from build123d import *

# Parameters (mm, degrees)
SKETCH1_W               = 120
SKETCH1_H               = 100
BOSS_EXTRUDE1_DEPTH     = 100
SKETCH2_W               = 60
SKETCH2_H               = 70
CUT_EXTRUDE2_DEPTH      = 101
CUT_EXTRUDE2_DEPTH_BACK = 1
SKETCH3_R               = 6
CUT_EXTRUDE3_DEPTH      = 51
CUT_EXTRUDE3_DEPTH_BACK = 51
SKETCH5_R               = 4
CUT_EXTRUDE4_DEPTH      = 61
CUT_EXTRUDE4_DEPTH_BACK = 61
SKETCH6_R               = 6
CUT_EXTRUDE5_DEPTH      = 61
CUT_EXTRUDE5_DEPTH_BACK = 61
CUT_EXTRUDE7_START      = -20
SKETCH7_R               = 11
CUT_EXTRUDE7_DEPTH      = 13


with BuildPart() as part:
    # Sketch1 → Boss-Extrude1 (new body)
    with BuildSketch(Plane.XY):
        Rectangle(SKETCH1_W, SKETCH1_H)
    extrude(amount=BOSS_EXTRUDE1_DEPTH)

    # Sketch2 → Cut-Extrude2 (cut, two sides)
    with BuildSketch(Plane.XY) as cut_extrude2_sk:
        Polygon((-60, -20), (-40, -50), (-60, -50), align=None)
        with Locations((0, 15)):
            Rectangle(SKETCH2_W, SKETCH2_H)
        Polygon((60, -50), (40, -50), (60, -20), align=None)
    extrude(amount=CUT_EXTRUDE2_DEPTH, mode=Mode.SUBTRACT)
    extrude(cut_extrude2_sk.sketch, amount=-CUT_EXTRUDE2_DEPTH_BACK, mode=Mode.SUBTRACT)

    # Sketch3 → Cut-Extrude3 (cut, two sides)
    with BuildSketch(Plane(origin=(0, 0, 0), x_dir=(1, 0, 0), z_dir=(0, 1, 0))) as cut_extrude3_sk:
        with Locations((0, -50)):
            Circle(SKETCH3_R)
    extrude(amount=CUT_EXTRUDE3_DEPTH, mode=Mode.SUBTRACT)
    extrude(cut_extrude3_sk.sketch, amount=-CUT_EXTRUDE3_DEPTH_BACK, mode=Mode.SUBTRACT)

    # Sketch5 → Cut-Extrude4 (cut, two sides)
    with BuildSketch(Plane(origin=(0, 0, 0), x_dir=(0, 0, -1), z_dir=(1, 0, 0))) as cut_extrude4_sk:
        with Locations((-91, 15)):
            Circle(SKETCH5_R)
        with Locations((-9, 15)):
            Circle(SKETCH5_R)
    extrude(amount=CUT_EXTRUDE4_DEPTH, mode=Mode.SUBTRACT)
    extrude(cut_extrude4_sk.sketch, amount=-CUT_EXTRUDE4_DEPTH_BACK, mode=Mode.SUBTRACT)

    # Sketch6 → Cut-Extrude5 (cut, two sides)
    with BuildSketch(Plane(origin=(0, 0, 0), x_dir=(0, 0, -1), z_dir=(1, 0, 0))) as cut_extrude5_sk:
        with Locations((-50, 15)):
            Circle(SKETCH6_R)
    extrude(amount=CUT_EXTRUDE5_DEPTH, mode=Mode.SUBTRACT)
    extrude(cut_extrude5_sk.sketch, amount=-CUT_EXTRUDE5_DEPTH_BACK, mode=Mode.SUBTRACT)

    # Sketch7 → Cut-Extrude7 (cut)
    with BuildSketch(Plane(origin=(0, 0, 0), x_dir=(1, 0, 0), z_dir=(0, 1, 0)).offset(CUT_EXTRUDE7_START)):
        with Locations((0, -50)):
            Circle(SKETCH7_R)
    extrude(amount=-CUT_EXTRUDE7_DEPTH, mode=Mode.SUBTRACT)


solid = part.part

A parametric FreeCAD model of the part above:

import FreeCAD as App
import Part
import Sketcher
from FreeCAD import Vector
Q = App.Units.Quantity

doc = App.newDocument("Part")
params = doc.addObject("Spreadsheet::Sheet", "Params")
for row, (alias, value) in enumerate([
    ("sketch1_width", "120 mm"),
    ("sketch1_height", "100 mm"),
    ("pad1_length", "100 mm"),
    ("sketch2_width", "20 mm"),
    ("sketch2_width2", "60 mm"),
    ("sketch2_height", "30 mm"),
    ("sketch2_height2", "70 mm"),
    ("sketch3_diameter", "12 mm"),
    ("sketch4_diameter", "8 mm"),
    ("sketch5_diameter", "12 mm"),
    ("sketch6_diameter", "22 mm"),
    ("pocket5_length", "13 mm"),
], start=1):
    params.set(f"A{row}", alias)
    params.set(f"B{row}", "=" + value)
    params.setAlias(f"B{row}", alias)

body = doc.addObject("PartDesign::Body", "Body")

sketch1 = doc.addObject("Sketcher::SketchObject", "Sketch")
body.addObject(sketch1)
sketch1.AttachmentSupport = (doc.XY_Plane, [""])
sketch1.MapMode = "FlatFace"
sketch1.addGeometry([
    Part.LineSegment(Vector(-60, 50, 0), Vector(-60, -50, 0)),
    Part.LineSegment(Vector(-60, -50, 0), Vector(60, -50, 0)),
    Part.LineSegment(Vector(60, -50, 0), Vector(60, 50, 0)),
    Part.LineSegment(Vector(60, 50, 0), Vector(-60, 50, 0)),
], False)
sketch1.addConstraint([
    Sketcher.Constraint("Coincident", 0, 2, 1, 1),
    Sketcher.Constraint("Coincident", 1, 2, 2, 1),
    Sketcher.Constraint("Coincident", 2, 2, 3, 1),
    Sketcher.Constraint("Coincident", 3, 2, 0, 1),
    Sketcher.Constraint("Vertical", 0),
    Sketcher.Constraint("Horizontal", 1),
    Sketcher.Constraint("Vertical", 2),
    Sketcher.Constraint("Horizontal", 3),
    Sketcher.Constraint("Symmetric", 0, 2, 2, 2, -1, 1),
    Sketcher.Constraint("DistanceX", 1, 1, 1, 2, Q("120 mm")),
    Sketcher.Constraint("DistanceY", 0, 2, 0, 1, Q("100 mm")),
])
sketch1.setExpression("Constraints[9]", "Params.sketch1_width")
sketch1.setExpression("Constraints[10]", "Params.sketch1_height")
pad1 = doc.addObject("PartDesign::Pad", "Pad")
body.addObject(pad1)
pad1.Profile = sketch1
pad1.setExpression("Length", "Params.pad1_length")

sketch2 = doc.addObject("Sketcher::SketchObject", "Sketch001")
body.addObject(sketch2)
sketch2.AttachmentSupport = (doc.XY_Plane, [""])
sketch2.MapMode = "FlatFace"
sketch2.addGeometry([
    Part.LineSegment(Vector(-40, -50, 0), Vector(-60, -20, 0)),
    Part.LineSegment(Vector(-60, -20, 0), Vector(-60, -50, 0)),
    Part.LineSegment(Vector(-60, -50, 0), Vector(-40, -50, 0)),
    Part.LineSegment(Vector(-30, 50, 0), Vector(-30, -20, 0)),
    Part.LineSegment(Vector(-30, -20, 0), Vector(30, -20, 0)),
    Part.LineSegment(Vector(30, -20, 0), Vector(30, 50, 0)),
    Part.LineSegment(Vector(30, 50, 0), Vector(-30, 50, 0)),
    Part.LineSegment(Vector(40, -50, 0), Vector(60, -50, 0)),
    Part.LineSegment(Vector(60, -50, 0), Vector(60, -20, 0)),
    Part.LineSegment(Vector(60, -20, 0), Vector(40, -50, 0)),
], False)
sketch2.addConstraint([
    Sketcher.Constraint("Coincident", 0, 2, 1, 1),
    Sketcher.Constraint("Coincident", 1, 2, 2, 1),
    Sketcher.Constraint("Coincident", 2, 2, 0, 1),
    Sketcher.Constraint("Coincident", 3, 2, 4, 1),
    Sketcher.Constraint("Coincident", 4, 2, 5, 1),
    Sketcher.Constraint("Coincident", 5, 2, 6, 1),
    Sketcher.Constraint("Coincident", 6, 2, 3, 1),
    Sketcher.Constraint("Coincident", 7, 2, 8, 1),
    Sketcher.Constraint("Coincident", 8, 2, 9, 1),
    Sketcher.Constraint("Coincident", 9, 2, 7, 1),
    Sketcher.Constraint("Vertical", 1),
    Sketcher.Constraint("Horizontal", 2),
    Sketcher.Constraint("Vertical", 3),
    Sketcher.Constraint("Horizontal", 4),
    Sketcher.Constraint("Vertical", 5),
    Sketcher.Constraint("Horizontal", 6),
    Sketcher.Constraint("Horizontal", 7),
    Sketcher.Constraint("Vertical", 8),
    Sketcher.Constraint("Symmetric", 1, 2, 7, 2, -2),
    Sketcher.Constraint("Horizontal", 0, 2, 3, 2),
    Sketcher.Constraint("Horizontal", 4, 2, 8, 2),
    Sketcher.Constraint("Equal", 2, 7),
    Sketcher.Constraint("DistanceX", 2, 1, 2, 2, Q("20 mm")),
    Sketcher.Constraint("DistanceX", 4, 1, 4, 2, Q("60 mm")),
    Sketcher.Constraint("DistanceY", 1, 2, 1, 1, Q("30 mm")),
    Sketcher.Constraint("DistanceY", 3, 2, 3, 1, Q("70 mm")),
    Sketcher.Constraint("DistanceX", 0, 2, -1, 1, Q("60 mm")),
    Sketcher.Constraint("DistanceY", 0, 2, -1, 1, Q("20 mm")),
    Sketcher.Constraint("DistanceX", 3, 2, -1, 1, Q("30 mm")),
])
sketch2.setExpression("Constraints[22]", "Params.sketch2_width")
sketch2.setExpression("Constraints[23]", "Params.sketch2_width2")
sketch2.setExpression("Constraints[24]", "Params.sketch2_height")
sketch2.setExpression("Constraints[25]", "Params.sketch2_height2")
pocket1 = doc.addObject("PartDesign::Pocket", "Pocket")
body.addObject(pocket1)
pocket1.Profile = sketch2
pocket1.Type = "ThroughAll"
pocket1.Midplane = True

sketch3 = doc.addObject("Sketcher::SketchObject", "Sketch002")
body.addObject(sketch3)
sketch3.AttachmentSupport = (doc.XZ_Plane, [""])
sketch3.MapMode = "FlatFace"
sketch3.addGeometry(Part.Circle(Vector(0, 50, 0), Vector(0, 0, 1), 6), False)
sketch3.addConstraint([
    Sketcher.Constraint("PointOnObject", 0, 3, -2),
    Sketcher.Constraint("Diameter", 0, Q("12 mm")),
    Sketcher.Constraint("DistanceY", -1, 1, 0, 3, Q("50 mm")),
])
sketch3.setExpression("Constraints[1]", "Params.sketch3_diameter")
pocket2 = doc.addObject("PartDesign::Pocket", "Pocket001")
body.addObject(pocket2)
pocket2.Profile = sketch3
pocket2.Type = "ThroughAll"
pocket2.Midplane = True

sketch4 = doc.addObject("Sketcher::SketchObject", "Sketch003")
body.addObject(sketch4)
sketch4.AttachmentSupport = (doc.YZ_Plane, [""])
sketch4.MapMode = "FlatFace"
sketch4.addGeometry([
    Part.Circle(Vector(15, 91, 0), Vector(0, 0, 1), 4),
    Part.Circle(Vector(15, 9, 0), Vector(0, 0, 1), 4),
], False)
sketch4.addConstraint([
    Sketcher.Constraint("Equal", 0, 1),
    Sketcher.Constraint("Vertical", 0, 3, 1, 3),
    Sketcher.Constraint("Diameter", 0, Q("8 mm")),
    Sketcher.Constraint("DistanceX", -1, 1, 0, 3, Q("15 mm")),
    Sketcher.Constraint("DistanceY", -1, 1, 0, 3, Q("91 mm")),
    Sketcher.Constraint("DistanceY", -1, 1, 1, 3, Q("9 mm")),
])
sketch4.setExpression("Constraints[2]", "Params.sketch4_diameter")
pocket3 = doc.addObject("PartDesign::Pocket", "Pocket002")
body.addObject(pocket3)
pocket3.Profile = sketch4
pocket3.Type = "ThroughAll"
pocket3.Midplane = True

sketch5 = doc.addObject("Sketcher::SketchObject", "Sketch004")
body.addObject(sketch5)
sketch5.AttachmentSupport = (doc.YZ_Plane, [""])
sketch5.MapMode = "FlatFace"
sketch5.addGeometry(Part.Circle(Vector(15, 50, 0), Vector(0, 0, 1), 6), False)
sketch5.addConstraint([
    Sketcher.Constraint("Diameter", 0, Q("12 mm")),
    Sketcher.Constraint("DistanceX", -1, 1, 0, 3, Q("15 mm")),
    Sketcher.Constraint("DistanceY", -1, 1, 0, 3, Q("50 mm")),
])
sketch5.setExpression("Constraints[0]", "Params.sketch5_diameter")
pocket4 = doc.addObject("PartDesign::Pocket", "Pocket003")
body.addObject(pocket4)
pocket4.Profile = sketch5
pocket4.Type = "ThroughAll"
pocket4.Midplane = True

sketch6 = doc.addObject("Sketcher::SketchObject", "Sketch005")
body.addObject(sketch6)
sketch6.AttachmentSupport = (doc.XZ_Plane, [""])
sketch6.MapMode = "FlatFace"
sketch6.AttachmentOffset = App.Placement(Vector(0, 0, 20), App.Rotation())
sketch6.addGeometry(Part.Circle(Vector(0, 50, 0), Vector(0, 0, 1), 11), False)
sketch6.addConstraint([
    Sketcher.Constraint("PointOnObject", 0, 3, -2),
    Sketcher.Constraint("Diameter", 0, Q("22 mm")),
    Sketcher.Constraint("DistanceY", -1, 1, 0, 3, Q("50 mm")),
])
sketch6.setExpression("Constraints[1]", "Params.sketch6_diameter")
pocket5 = doc.addObject("PartDesign::Pocket", "Pocket004")
body.addObject(pocket5)
pocket5.Profile = sketch6
pocket5.setExpression("Length", "Params.pocket5_length")
pocket5.Reversed = True

doc.recompute()
